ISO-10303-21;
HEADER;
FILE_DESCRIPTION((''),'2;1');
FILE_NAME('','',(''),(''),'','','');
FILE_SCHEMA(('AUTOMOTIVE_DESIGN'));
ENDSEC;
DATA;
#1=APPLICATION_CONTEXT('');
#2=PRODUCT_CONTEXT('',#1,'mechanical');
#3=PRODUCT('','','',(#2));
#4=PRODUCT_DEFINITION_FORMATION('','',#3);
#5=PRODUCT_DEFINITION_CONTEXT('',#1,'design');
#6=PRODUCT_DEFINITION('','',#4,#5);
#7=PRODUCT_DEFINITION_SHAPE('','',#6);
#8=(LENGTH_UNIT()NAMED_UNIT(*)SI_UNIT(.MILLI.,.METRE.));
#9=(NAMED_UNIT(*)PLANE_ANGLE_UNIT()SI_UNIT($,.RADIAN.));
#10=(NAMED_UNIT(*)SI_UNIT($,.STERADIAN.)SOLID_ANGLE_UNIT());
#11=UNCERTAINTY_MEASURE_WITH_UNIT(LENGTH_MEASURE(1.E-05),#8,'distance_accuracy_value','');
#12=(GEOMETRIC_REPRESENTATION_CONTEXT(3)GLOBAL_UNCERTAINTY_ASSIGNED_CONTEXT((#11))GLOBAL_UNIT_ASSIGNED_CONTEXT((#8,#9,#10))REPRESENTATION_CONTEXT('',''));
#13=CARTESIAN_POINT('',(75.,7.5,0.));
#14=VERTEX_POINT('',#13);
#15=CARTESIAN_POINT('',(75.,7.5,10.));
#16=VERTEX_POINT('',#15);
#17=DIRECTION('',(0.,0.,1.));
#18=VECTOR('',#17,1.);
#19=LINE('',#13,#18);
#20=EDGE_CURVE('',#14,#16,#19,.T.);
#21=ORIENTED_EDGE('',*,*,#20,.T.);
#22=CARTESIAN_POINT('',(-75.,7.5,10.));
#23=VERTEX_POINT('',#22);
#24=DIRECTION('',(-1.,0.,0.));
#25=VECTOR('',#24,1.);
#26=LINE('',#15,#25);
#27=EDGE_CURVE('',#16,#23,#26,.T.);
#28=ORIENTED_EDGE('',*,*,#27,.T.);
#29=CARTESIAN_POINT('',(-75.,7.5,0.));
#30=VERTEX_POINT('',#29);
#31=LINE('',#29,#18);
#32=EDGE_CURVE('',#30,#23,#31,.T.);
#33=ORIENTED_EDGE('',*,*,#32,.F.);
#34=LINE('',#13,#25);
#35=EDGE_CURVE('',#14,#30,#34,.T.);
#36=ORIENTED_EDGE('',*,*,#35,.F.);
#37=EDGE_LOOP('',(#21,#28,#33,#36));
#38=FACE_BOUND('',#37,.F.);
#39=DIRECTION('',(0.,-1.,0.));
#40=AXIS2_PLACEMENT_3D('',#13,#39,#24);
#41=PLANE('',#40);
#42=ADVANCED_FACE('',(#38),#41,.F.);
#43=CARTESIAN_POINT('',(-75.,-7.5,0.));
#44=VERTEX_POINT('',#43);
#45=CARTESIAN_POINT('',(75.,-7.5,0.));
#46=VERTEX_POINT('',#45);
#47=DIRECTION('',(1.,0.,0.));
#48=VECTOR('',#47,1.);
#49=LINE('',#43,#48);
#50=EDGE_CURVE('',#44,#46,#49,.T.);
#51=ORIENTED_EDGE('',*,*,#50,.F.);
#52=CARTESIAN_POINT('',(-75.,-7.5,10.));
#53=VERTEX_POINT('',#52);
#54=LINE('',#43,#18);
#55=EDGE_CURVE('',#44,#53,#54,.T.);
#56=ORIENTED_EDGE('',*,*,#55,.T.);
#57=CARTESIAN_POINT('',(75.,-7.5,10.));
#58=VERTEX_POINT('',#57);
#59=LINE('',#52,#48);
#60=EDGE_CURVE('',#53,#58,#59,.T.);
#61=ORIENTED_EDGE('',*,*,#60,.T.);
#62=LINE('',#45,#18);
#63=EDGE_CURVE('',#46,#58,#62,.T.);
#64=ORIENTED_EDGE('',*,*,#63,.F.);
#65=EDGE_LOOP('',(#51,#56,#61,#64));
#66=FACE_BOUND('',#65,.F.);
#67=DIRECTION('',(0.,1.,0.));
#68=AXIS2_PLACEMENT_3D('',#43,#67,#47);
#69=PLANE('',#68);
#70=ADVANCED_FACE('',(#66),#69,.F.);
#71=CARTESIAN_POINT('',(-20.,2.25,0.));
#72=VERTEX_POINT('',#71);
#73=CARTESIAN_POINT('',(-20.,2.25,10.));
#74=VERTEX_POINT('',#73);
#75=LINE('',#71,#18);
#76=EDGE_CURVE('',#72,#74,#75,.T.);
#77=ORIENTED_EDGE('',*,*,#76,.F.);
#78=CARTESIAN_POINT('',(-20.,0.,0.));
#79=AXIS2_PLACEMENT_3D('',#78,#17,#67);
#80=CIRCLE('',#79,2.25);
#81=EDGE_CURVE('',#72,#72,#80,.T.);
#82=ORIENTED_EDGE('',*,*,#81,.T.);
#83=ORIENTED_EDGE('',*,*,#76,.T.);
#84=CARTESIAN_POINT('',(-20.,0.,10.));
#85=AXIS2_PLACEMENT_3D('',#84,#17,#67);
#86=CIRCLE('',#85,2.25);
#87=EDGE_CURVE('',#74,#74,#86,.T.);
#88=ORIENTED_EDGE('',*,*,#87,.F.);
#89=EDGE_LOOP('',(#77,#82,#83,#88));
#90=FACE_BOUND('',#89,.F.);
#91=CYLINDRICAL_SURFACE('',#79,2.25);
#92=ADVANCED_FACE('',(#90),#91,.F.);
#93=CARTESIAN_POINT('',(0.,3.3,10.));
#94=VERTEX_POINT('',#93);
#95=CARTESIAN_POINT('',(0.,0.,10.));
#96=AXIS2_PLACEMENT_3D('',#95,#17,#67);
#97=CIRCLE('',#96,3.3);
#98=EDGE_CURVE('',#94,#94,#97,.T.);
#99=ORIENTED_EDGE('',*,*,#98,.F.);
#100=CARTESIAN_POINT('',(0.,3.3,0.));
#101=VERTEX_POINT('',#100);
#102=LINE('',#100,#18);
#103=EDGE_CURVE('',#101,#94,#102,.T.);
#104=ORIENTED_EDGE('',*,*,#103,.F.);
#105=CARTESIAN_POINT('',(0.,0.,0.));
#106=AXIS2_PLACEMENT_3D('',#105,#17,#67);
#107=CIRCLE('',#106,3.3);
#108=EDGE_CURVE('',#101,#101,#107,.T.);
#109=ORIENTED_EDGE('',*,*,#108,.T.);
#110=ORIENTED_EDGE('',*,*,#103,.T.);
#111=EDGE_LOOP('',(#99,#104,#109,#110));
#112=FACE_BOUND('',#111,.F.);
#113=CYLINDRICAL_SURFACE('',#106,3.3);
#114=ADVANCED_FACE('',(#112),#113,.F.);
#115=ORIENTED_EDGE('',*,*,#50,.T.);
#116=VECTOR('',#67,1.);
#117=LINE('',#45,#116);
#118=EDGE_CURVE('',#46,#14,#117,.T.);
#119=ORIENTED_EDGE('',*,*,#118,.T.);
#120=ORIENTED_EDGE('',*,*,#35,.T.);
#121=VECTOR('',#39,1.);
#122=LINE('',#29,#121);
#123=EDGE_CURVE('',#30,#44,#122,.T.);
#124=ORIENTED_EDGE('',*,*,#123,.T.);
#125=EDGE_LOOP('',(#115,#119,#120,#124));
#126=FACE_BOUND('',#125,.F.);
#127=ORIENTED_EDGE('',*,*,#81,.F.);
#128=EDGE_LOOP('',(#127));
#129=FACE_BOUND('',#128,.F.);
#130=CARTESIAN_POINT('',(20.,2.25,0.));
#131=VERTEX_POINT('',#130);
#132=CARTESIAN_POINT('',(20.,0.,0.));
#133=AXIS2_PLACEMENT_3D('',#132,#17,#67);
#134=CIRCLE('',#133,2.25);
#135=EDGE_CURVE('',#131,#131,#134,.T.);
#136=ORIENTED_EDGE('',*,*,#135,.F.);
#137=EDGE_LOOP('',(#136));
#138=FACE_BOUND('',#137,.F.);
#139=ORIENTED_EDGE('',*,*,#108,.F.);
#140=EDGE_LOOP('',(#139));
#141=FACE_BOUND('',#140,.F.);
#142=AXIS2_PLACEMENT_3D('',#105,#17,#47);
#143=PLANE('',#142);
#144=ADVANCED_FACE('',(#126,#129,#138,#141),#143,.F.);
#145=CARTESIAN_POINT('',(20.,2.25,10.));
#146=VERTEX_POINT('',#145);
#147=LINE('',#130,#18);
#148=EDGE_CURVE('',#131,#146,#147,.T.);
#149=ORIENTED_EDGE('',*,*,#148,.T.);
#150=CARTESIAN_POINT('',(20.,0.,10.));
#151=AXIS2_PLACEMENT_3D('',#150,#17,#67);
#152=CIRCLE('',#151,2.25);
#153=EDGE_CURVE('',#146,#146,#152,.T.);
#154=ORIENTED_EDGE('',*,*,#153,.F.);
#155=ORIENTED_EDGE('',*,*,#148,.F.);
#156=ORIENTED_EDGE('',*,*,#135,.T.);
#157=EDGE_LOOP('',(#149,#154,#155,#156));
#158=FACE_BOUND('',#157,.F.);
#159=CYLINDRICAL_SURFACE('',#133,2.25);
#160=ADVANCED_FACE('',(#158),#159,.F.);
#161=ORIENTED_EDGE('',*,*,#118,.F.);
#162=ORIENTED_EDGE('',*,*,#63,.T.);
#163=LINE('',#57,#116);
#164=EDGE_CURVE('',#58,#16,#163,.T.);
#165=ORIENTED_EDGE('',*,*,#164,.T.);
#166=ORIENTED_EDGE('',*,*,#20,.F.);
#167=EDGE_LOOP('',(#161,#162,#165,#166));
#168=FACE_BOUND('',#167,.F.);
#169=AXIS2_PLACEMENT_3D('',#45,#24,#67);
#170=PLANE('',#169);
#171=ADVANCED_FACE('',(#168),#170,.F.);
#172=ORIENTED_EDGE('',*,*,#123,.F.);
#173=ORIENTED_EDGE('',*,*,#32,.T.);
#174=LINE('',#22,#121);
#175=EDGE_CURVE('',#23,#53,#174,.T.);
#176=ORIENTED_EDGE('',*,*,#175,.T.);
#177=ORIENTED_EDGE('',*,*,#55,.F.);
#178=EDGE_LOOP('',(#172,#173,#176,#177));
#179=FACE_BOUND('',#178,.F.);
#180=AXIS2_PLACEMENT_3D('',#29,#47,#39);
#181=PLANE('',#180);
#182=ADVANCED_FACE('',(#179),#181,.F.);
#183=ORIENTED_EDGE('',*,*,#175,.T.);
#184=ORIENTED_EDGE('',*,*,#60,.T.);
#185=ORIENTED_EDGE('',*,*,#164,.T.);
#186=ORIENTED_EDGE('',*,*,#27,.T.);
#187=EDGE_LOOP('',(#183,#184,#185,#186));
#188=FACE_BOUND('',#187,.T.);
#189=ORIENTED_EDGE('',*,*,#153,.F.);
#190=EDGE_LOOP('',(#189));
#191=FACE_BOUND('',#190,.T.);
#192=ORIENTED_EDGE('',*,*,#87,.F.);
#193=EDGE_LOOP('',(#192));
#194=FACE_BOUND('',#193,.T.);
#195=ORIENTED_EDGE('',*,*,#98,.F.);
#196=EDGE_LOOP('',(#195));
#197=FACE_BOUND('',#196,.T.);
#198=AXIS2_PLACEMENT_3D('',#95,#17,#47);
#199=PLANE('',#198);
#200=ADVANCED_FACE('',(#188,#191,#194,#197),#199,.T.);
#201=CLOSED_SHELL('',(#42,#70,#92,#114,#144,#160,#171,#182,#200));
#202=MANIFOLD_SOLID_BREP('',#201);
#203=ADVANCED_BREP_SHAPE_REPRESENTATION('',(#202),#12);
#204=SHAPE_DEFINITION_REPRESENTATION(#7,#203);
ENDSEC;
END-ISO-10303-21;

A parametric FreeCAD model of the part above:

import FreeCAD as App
import Part
import Sketcher
from FreeCAD import Vector

doc = App.newDocument("Part")
body = doc.addObject("PartDesign::Body", "Body")

# Sketch on XY plane
sketch1 = body.newObject("Sketcher::SketchObject", "Sketch")
sketch1.AttachmentSupport = (doc.getObject("XY_Plane"), [""])
sketch1.MapMode = "FlatFace"
sketch1.addGeometry([
    Part.LineSegment(Vector(75, -8, 0), Vector(75, 8, 0)),
    Part.LineSegment(Vector(75, 8, 0), Vector(-75, 8, 0)),
    Part.LineSegment(Vector(-75, 8, 0), Vector(-75, -8, 0)),
    Part.LineSegment(Vector(-75, -8, 0), Vector(75, -8, 0)),
], False)
sketch1.addConstraint([
    Sketcher.Constraint("Coincident", 0, 2, 1, 1),
    Sketcher.Constraint("Coincident", 1, 2, 2, 1),
    Sketcher.Constraint("Coincident", 2, 2, 3, 1),
    Sketcher.Constraint("Coincident", 3, 2, 0, 1),
    Sketcher.Constraint("Vertical", 0),
    Sketcher.Constraint("Horizontal", 1),
    Sketcher.Constraint("Vertical", 2),
    Sketcher.Constraint("Horizontal", 3),
    Sketcher.Constraint("Symmetric", 0, 2, 2, 2, -1, 1),
    Sketcher.Constraint("DistanceX", 1, 2, 1, 1, 150.0),
    Sketcher.Constraint("DistanceY", 0, 1, 0, 2, 15.0),
])
pad1 = body.newObject("PartDesign::Pad", "Pad")
pad1.Profile = sketch1
pad1.Length = 10

# Sketch on XY plane
sketch2 = body.newObject("Sketcher::SketchObject", "Sketch001")
sketch2.AttachmentSupport = (doc.getObject("XY_Plane"), [""])
sketch2.MapMode = "FlatFace"
sketch2.addGeometry([
    Part.Circle(Vector(-20, 0, 0), Vector(0, 0, 1), 2.2),
    Part.Circle(Vector(20, 0, 0), Vector(0, 0, 1), 2.2),
], False)
sketch2.addConstraint([
    Sketcher.Constraint("Equal", 0, 1),
    Sketcher.Constraint("Symmetric", 0, 3, 1, 3, -1, 1),
    Sketcher.Constraint("PointOnObject", 0, 3, -1),
    Sketcher.Constraint("Diameter", 0, 4.5),
    Sketcher.Constraint("DistanceX", 0, 3, -1, 1, 20.0),
])
doc.recompute()
hole = body.newObject("PartDesign::Hole", "Hole")
hole.Profile = sketch2
hole.ThreadType = "None"
hole.Diameter = 4.5
hole.DepthType = "ThroughAll"
hole.Reversed = True

# Sketch on XY plane
sketch3 = body.newObject("Sketcher::SketchObject", "Sketch002")
sketch3.AttachmentSupport = (doc.getObject("XY_Plane"), [""])
sketch3.MapMode = "FlatFace"
sketch3.addGeometry(Part.Circle(Vector(0, 0, 0), Vector(0, 0, 1), 3.3), False)
sketch3.addConstraint([
    Sketcher.Constraint("Coincident", 0, 3, -1, 1),
    Sketcher.Constraint("Diameter", 0, 6.6),
])
doc.recompute()
hole2 = body.newObject("PartDesign::Hole", "Hole001")
hole2.Profile = sketch3
hole2.ThreadType = "None"
hole2.Diameter = 6.6
hole2.DepthType = "ThroughAll"
hole2.Reversed = True

doc.recompute()
